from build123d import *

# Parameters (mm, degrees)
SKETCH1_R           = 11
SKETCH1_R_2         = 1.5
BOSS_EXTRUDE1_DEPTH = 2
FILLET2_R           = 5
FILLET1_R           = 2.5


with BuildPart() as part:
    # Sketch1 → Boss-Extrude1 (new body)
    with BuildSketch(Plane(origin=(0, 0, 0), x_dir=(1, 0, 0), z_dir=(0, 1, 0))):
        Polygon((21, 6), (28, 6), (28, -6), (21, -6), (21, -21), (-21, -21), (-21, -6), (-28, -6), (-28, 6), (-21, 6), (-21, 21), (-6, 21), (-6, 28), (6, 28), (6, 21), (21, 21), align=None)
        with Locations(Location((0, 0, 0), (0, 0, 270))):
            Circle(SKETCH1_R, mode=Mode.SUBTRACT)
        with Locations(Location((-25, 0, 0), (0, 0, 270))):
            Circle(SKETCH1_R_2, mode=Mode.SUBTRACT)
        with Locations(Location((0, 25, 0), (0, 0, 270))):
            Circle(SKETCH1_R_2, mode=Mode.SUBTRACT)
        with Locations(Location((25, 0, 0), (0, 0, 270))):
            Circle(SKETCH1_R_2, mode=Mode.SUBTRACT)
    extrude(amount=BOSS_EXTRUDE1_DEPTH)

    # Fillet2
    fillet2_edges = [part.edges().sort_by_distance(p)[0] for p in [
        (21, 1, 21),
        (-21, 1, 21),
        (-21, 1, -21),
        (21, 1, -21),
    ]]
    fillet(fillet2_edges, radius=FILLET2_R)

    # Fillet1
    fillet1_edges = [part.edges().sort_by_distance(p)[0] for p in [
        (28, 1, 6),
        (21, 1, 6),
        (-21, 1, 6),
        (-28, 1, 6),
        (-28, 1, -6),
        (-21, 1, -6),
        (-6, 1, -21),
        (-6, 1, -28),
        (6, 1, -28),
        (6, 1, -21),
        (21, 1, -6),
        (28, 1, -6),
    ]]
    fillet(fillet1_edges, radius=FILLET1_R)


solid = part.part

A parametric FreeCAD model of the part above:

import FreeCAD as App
import Part
import Sketcher

V = App.Vector


def edges_at(feature, points):
    """Names of the edges that pass closest to the given points."""
    edges = feature.Shape.Edges
    near = lambda p: min(range(len(edges)), key=lambda i: edges[i].distToShape(Part.Vertex(*p))[0])
    return sorted({f"Edge{near(p) + 1}" for p in points})

doc = App.newDocument("Part")
body = doc.addObject("PartDesign::Body", "Body")

# Sketch on XZ plane
sketch1 = body.newObject("Sketcher::SketchObject", "Sketch")
sketch1.AttachmentSupport = (doc.getObject("XZ_Plane"), [""])
sketch1.MapMode = "FlatFace"
sketch1.addGeometry([
    Part.LineSegment(V(28, -6, 0), V(21, -6, 0)),  # 0
    Part.LineSegment(V(21, -6, 0), V(21, -21, 0)),  # 1
    Part.LineSegment(V(21, -21, 0), V(6, -21, 0)),  # 2
    Part.LineSegment(V(6, -21, 0), V(6, -28, 0)),  # 3
    Part.LineSegment(V(6, -28, 0), V(-6, -28, 0)),  # 4
    Part.LineSegment(V(-6, -28, 0), V(-6, -21, 0)),  # 5
    Part.LineSegment(V(-6, -21, 0), V(-21, -21, 0)),  # 6
    Part.LineSegment(V(-21, -21, 0), V(-21, -6, 0)),  # 7
    Part.LineSegment(V(-21, -6, 0), V(-28, -6, 0)),  # 8
    Part.LineSegment(V(-28, -6, 0), V(-28, 6, 0)),  # 9
    Part.LineSegment(V(-28, 6, 0), V(-21, 6, 0)),  # 10
    Part.LineSegment(V(-21, 6, 0), V(-21, 21, 0)),  # 11
    Part.LineSegment(V(-21, 21, 0), V(21, 21, 0)),  # 12
    Part.LineSegment(V(21, 21, 0), V(21, 6, 0)),  # 13
    Part.LineSegment(V(21, 6, 0), V(28, 6, 0)),  # 14
    Part.LineSegment(V(28, 6, 0), V(28, -6, 0)),  # 15
    Part.Circle(V(25, 0, 0), V(0, 0, 1), 1.5),  # 16
    Part.Circle(V(0, 0, 0), V(0, 0, 1), 11),  # 17
    Part.Circle(V(-25, 0, 0), V(0, 0, 1), 1.5),  # 18
    Part.Circle(V(0, -25, 0), V(0, 0, 1), 1.5),  # 19
], False)
sketch1.addConstraint([
    Sketcher.Constraint("Coincident", 0, 2, 1, 1),
    Sketcher.Constraint("Coincident", 1, 2, 2, 1),
    Sketcher.Constraint("Coincident", 2, 2, 3, 1),
    Sketcher.Constraint("Coincident", 3, 2, 4, 1),
    Sketcher.Constraint("Coincident", 4, 2, 5, 1),
    Sketcher.Constraint("Coincident", 5, 2, 6, 1),
    Sketcher.Constraint("Coincident", 6, 2, 7, 1),
    Sketcher.Constraint("Coincident", 7, 2, 8, 1),
    Sketcher.Constraint("Coincident", 8, 2, 9, 1),
    Sketcher.Constraint("Coincident", 9, 2, 10, 1),
    Sketcher.Constraint("Coincident", 10, 2, 11, 1),
    Sketcher.Constraint("Coincident", 11, 2, 12, 1),
    Sketcher.Constraint("Coincident", 12, 2, 13, 1),
    Sketcher.Constraint("Coincident", 13, 2, 14, 1),
    Sketcher.Constraint("Coincident", 14, 2, 15, 1),
    Sketcher.Constraint("Coincident", 15, 2, 0, 1),
    Sketcher.Constraint("Horizontal", 0),
    Sketcher.Constraint("Vertical", 1),
    Sketcher.Constraint("Horizontal", 2),
    Sketcher.Constraint("Vertical", 3),
    Sketcher.Constraint("Horizontal", 4),
    Sketcher.Constraint("Vertical", 5),
    Sketcher.Constraint("Horizontal", 6),
    Sketcher.Constraint("Vertical", 7),
    Sketcher.Constraint("Horizontal", 8),
    Sketcher.Constraint("Vertical", 9),
    Sketcher.Constraint("Horizontal", 10),
    Sketcher.Constraint("Vertical", 11),
    Sketcher.Constraint("Horizontal", 12),
    Sketcher.Constraint("Vertical", 13),
    Sketcher.Constraint("Horizontal", 14),
    Sketcher.Constraint("Vertical", 15),
    Sketcher.Constraint("Coincident", 17, 3, -1, 1),
    Sketcher.Constraint("Equal", 16, 18),
    Sketcher.Constraint("Equal", 18, 19),
    Sketcher.Constraint("Symmetric", 16, 3, 18, 3, -1, 1),
    Sketcher.Constraint("Symmetric", 0, 2, 10, 2, -1, 1),
    Sketcher.Constraint("Symmetric", 6, 2, 12, 2, -1, 1),
    Sketcher.Constraint("Symmetric", 8, 2, 14, 2, -1, 1),
    Sketcher.Constraint("Symmetric", 2, 2, 5, 2, -2),
    Sketcher.Constraint("Symmetric", 0, 2, 7, 2, -2),
    Sketcher.Constraint("PointOnObject", 16, 3, -1),
    Sketcher.Constraint("PointOnObject", 19, 3, -2),
    Sketcher.Constraint("Equal", 6, 1),
    Sketcher.Constraint("Equal", 14, 3),
    Sketcher.Constraint("Equal", 4, 9),
    Sketcher.Constraint("Diameter", 16, 3.0),
    Sketcher.Constraint("Diameter", 17, 22.0),
    Sketcher.Constraint("DistanceX", 0, 2, 0, 1, 7.0),
    Sketcher.Constraint("DistanceX", 2, 2, 2, 1, 15.0),
    Sketcher.Constraint("DistanceX", 4, 2, 4, 1, 12.0),
    Sketcher.Constraint("DistanceX", -1, 1, 16, 3, 25.0),
    Sketcher.Constraint("DistanceY", 19, 3, -1, 1, 25.0),
])
pad1 = body.newObject("PartDesign::Pad", "Pad")
pad1.Profile = sketch1
pad1.Length = 2
pad1.Reversed = True
doc.recompute()

fillet = body.newObject("PartDesign::Fillet", "Fillet")
fillet.Base = (pad1, edges_at(pad1, [
    (21, 1, 21),
    (-21, 1, 21),
    (-21, 1, -21),
    (21, 1, -21),
]))
fillet.Radius = 5
doc.recompute()

fillet2 = body.newObject("PartDesign::Fillet", "Fillet001")
fillet2.Base = (fillet, edges_at(fillet, [
    (28, 1, 6),
    (21, 1, 6),
    (-21, 1, 6),
    (-28, 1, 6),
    (-28, 1, -6),
    (-21, 1, -6),
    (-6, 1, -21),
    (-6, 1, -28),
    (6, 1, -28),
    (6, 1, -21),
    (21, 1, -6),
    (28, 1, -6),
]))
fillet2.Radius = 2.5

doc.recompute()
